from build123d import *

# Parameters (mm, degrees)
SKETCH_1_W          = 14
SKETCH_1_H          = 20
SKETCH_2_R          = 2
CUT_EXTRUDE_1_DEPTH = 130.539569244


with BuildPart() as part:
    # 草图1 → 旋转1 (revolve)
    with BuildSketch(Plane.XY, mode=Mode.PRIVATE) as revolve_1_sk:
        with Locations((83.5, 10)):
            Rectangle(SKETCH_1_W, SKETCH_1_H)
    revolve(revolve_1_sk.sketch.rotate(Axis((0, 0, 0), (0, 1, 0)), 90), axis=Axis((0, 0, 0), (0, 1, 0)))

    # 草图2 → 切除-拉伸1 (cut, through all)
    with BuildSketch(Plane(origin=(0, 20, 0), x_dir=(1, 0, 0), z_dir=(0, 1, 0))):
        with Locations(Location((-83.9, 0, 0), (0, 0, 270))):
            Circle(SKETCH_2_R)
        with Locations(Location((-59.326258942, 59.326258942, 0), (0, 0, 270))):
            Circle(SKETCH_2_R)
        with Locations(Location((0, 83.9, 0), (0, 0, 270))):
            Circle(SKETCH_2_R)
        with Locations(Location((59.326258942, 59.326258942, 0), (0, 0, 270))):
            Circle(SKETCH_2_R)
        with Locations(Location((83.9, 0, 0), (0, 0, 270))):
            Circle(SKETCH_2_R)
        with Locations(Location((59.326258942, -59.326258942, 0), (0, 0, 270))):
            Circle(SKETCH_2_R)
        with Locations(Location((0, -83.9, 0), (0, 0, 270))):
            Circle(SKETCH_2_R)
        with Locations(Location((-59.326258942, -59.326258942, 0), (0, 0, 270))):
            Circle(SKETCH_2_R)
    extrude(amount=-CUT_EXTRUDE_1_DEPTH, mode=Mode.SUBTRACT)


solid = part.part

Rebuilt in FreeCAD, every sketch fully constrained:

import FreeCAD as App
import Part
import Sketcher

V = App.Vector

doc = App.newDocument("Part")
body = doc.addObject("PartDesign::Body", "Body")

# Sketch on XY plane
sketch1 = body.newObject("Sketcher::SketchObject", "Sketch")
sketch1.AttachmentSupport = (doc.getObject("XY_Plane"), [""])
sketch1.MapMode = "FlatFace"
sketch1.addGeometry(Part.LineSegment(V(76, 20, 0), V(76, 0, 0)), False)
sketch1.addGeometry(Part.LineSegment(V(76, 0, 0), V(90, 0, 0)), False)
sketch1.addGeometry(Part.LineSegment(V(90, 0, 0), V(90, 20, 0)), False)
sketch1.addGeometry(Part.LineSegment(V(90, 20, 0), V(76, 20, 0)), False)
sketch1.addConstraint(Sketcher.Constraint("Coincident", 0, 2, 1, 1))
sketch1.addConstraint(Sketcher.Constraint("Coincident", 1, 2, 2, 1))
sketch1.addConstraint(Sketcher.Constraint("Coincident", 2, 2, 3, 1))
sketch1.addConstraint(Sketcher.Constraint("Coincident", 3, 2, 0, 1))
sketch1.addConstraint(Sketcher.Constraint("Vertical", 0))
sketch1.addConstraint(Sketcher.Constraint("Horizontal", 1))
sketch1.addConstraint(Sketcher.Constraint("Vertical", 2))
sketch1.addConstraint(Sketcher.Constraint("Horizontal", 3))
sketch1.addConstraint(Sketcher.Constraint("PointOnObject", 0, 2, -1))
sketch1.addConstraint(Sketcher.Constraint("DistanceX", 1, 1, 1, 2, 14.0))
sketch1.addConstraint(Sketcher.Constraint("DistanceY", 0, 2, 0, 1, 20.0))
sketch1.addConstraint(Sketcher.Constraint("DistanceX", -1, 1, 0, 2, 76.5))
revolution = body.newObject("PartDesign::Revolution", "Revolution")
revolution.Profile = sketch1
revolution.ReferenceAxis = (sketch1, ["V_Axis"])
revolution.Angle = 360

# Sketch on XZ plane
sketch2 = body.newObject("Sketcher::SketchObject", "Sketch001")
sketch2.AttachmentSupport = (doc.getObject("XZ_Plane"), [""])
sketch2.MapMode = "FlatFace"
sketch2.AttachmentOffset = App.Placement(V(0, 0, -20), App.Rotation())
sketch2.addGeometry(Part.Circle(V(-83.9, 0, 0), V(0, 0, 1), 2), False)
sketch2.addGeometry(Part.Circle(V(-59.3, -59.3, 0), V(0, 0, 1), 2), False)
sketch2.addGeometry(Part.Circle(V(0, -83.9, 0), V(0, 0, 1), 2), False)
sketch2.addGeometry(Part.Circle(V(59.3, -59.3, 0), V(0, 0, 1), 2), False)
sketch2.addGeometry(Part.Circle(V(83.9, 0, 0), V(0, 0, 1), 2), False)
sketch2.addGeometry(Part.Circle(V(59.3, 59.3, 0), V(0, 0, 1), 2), False)
sketch2.addGeometry(Part.Circle(V(0, 83.9, 0), V(0, 0, 1), 2), False)
sketch2.addGeometry(Part.Circle(V(-59.3, 59.3, 0), V(0, 0, 1), 2), False)
sketch2.addConstraint(Sketcher.Constraint("Equal", 0, 1))
sketch2.addConstraint(Sketcher.Constraint("Equal", 1, 2))
sketch2.addConstraint(Sketcher.Constraint("Equal", 2, 3))
sketch2.addConstraint(Sketcher.Constraint("Equal", 3, 4))
sketch2.addConstraint(Sketcher.Constraint("Equal", 4, 5))
sketch2.addConstraint(Sketcher.Constraint("Equal", 5, 6))
sketch2.addConstraint(Sketcher.Constraint("Equal", 6, 7))
sketch2.addConstraint(Sketcher.Constraint("Symmetric", 0, 3, 4, 3, -1, 1))
sketch2.addConstraint(Sketcher.Constraint("Symmetric", 1, 3, 5, 3, -1, 1))
sketch2.addConstraint(Sketcher.Constraint("Symmetric", 2, 3, 6, 3, -1, 1))
sketch2.addConstraint(Sketcher.Constraint("Symmetric", 3, 3, 7, 3, -1, 1))
sketch2.addConstraint(Sketcher.Constraint("Symmetric", 1, 3, 3, 3, -2))
sketch2.addConstraint(Sketcher.Constraint("PointOnObject", 0, 3, -1))
sketch2.addConstraint(Sketcher.Constraint("PointOnObject", 2, 3, -2))
sketch2.addConstraint(Sketcher.Constraint("Diameter", 0, 4.0))
sketch2.addConstraint(Sketcher.Constraint("DistanceX", 0, 3, -1, 1, 83.9))
sketch2.addConstraint(Sketcher.Constraint("DistanceY", 2, 3, -1, 1, 83.9))
sketch2.addConstraint(Sketcher.Constraint("DistanceX", 1, 3, -1, 1, 59.326259))
sketch2.addConstraint(Sketcher.Constraint("DistanceY", 1, 3, -1, 1, 59.326259))
pocket1 = body.newObject("PartDesign::Pocket", "Pocket")
pocket1.Profile = sketch2
pocket1.Type = "ThroughAll"
pocket1.Reversed = True

doc.recompute()
